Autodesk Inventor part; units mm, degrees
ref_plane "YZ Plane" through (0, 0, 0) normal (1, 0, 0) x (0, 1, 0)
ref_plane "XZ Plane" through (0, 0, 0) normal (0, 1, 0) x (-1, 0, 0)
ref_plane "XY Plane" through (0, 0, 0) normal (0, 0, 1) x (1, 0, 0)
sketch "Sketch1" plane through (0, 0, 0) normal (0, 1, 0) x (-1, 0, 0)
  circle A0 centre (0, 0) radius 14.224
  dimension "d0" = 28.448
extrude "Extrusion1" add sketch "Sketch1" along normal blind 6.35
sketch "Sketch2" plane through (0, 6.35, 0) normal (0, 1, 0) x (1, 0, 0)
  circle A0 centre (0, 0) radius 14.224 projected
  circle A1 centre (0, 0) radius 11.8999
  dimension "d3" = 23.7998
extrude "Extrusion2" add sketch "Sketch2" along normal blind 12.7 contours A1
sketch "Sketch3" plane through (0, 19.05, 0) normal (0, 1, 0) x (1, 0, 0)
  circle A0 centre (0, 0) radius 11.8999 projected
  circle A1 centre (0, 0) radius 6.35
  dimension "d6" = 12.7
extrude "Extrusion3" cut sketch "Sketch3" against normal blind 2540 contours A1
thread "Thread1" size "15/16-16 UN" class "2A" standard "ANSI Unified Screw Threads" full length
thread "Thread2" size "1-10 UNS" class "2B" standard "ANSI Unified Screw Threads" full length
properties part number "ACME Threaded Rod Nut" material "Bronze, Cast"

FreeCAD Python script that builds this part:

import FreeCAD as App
import Part
import Sketcher

V = App.Vector
Q = App.Units.Quantity

doc = App.newDocument("Part")
body = doc.addObject("PartDesign::Body", "Body")

# Sketch on XZ plane
sketch1 = body.newObject("Sketcher::SketchObject", "Sketch")
sketch1.AttachmentSupport = (doc.getObject("XZ_Plane"), [""])
sketch1.MapMode = "FlatFace"
sketch1.addGeometry(Part.Circle(V(0, 0, 0), V(0, 0, 1), 14), False)
sketch1.addConstraint(Sketcher.Constraint("Coincident", 0, 3, -1, 1))
sketch1.addConstraint(Sketcher.Constraint("Diameter", 0, Q("1.12 in")))
pad1 = body.newObject("PartDesign::Pad", "Pad")
pad1.Profile = sketch1
pad1.Length = Q("0.25 in")
pad1.Reversed = True

# Sketch on XZ plane
sketch2 = body.newObject("Sketcher::SketchObject", "Sketch001")
sketch2.AttachmentSupport = (doc.getObject("XZ_Plane"), [""])
sketch2.MapMode = "FlatFace"
sketch2.AttachmentOffset = App.Placement(V(0, 0, -0.25 * 25.4), App.Rotation())
sketch2.addGeometry(Part.Circle(V(0, 0, 0), V(0, 0, 1), 12), False)
sketch2.addConstraint(Sketcher.Constraint("Coincident", 0, 3, -1, 1))
sketch2.addConstraint(Sketcher.Constraint("Diameter", 0, Q("0.937 in")))
pad2 = body.newObject("PartDesign::Pad", "Pad001")
pad2.Profile = sketch2
pad2.Length = Q("0.5 in")
pad2.Reversed = True

# Sketch on XZ plane
sketch3 = body.newObject("Sketcher::SketchObject", "Sketch002")
sketch3.AttachmentSupport = (doc.getObject("XZ_Plane"), [""])
sketch3.MapMode = "FlatFace"
sketch3.AttachmentOffset = App.Placement(V(0, 0, -0.75 * 25.4), App.Rotation())
sketch3.addGeometry(Part.Circle(V(0, 0, 0), V(0, 0, 1), 6), False)
sketch3.addConstraint(Sketcher.Constraint("Coincident", 0, 3, -1, 1))
sketch3.addConstraint(Sketcher.Constraint("Diameter", 0, Q("0.5 in")))
pocket1 = body.newObject("PartDesign::Pocket", "Pocket")
pocket1.Profile = sketch3
pocket1.Length = Q("100 in")
pocket1.Reversed = True

doc.recompute()
